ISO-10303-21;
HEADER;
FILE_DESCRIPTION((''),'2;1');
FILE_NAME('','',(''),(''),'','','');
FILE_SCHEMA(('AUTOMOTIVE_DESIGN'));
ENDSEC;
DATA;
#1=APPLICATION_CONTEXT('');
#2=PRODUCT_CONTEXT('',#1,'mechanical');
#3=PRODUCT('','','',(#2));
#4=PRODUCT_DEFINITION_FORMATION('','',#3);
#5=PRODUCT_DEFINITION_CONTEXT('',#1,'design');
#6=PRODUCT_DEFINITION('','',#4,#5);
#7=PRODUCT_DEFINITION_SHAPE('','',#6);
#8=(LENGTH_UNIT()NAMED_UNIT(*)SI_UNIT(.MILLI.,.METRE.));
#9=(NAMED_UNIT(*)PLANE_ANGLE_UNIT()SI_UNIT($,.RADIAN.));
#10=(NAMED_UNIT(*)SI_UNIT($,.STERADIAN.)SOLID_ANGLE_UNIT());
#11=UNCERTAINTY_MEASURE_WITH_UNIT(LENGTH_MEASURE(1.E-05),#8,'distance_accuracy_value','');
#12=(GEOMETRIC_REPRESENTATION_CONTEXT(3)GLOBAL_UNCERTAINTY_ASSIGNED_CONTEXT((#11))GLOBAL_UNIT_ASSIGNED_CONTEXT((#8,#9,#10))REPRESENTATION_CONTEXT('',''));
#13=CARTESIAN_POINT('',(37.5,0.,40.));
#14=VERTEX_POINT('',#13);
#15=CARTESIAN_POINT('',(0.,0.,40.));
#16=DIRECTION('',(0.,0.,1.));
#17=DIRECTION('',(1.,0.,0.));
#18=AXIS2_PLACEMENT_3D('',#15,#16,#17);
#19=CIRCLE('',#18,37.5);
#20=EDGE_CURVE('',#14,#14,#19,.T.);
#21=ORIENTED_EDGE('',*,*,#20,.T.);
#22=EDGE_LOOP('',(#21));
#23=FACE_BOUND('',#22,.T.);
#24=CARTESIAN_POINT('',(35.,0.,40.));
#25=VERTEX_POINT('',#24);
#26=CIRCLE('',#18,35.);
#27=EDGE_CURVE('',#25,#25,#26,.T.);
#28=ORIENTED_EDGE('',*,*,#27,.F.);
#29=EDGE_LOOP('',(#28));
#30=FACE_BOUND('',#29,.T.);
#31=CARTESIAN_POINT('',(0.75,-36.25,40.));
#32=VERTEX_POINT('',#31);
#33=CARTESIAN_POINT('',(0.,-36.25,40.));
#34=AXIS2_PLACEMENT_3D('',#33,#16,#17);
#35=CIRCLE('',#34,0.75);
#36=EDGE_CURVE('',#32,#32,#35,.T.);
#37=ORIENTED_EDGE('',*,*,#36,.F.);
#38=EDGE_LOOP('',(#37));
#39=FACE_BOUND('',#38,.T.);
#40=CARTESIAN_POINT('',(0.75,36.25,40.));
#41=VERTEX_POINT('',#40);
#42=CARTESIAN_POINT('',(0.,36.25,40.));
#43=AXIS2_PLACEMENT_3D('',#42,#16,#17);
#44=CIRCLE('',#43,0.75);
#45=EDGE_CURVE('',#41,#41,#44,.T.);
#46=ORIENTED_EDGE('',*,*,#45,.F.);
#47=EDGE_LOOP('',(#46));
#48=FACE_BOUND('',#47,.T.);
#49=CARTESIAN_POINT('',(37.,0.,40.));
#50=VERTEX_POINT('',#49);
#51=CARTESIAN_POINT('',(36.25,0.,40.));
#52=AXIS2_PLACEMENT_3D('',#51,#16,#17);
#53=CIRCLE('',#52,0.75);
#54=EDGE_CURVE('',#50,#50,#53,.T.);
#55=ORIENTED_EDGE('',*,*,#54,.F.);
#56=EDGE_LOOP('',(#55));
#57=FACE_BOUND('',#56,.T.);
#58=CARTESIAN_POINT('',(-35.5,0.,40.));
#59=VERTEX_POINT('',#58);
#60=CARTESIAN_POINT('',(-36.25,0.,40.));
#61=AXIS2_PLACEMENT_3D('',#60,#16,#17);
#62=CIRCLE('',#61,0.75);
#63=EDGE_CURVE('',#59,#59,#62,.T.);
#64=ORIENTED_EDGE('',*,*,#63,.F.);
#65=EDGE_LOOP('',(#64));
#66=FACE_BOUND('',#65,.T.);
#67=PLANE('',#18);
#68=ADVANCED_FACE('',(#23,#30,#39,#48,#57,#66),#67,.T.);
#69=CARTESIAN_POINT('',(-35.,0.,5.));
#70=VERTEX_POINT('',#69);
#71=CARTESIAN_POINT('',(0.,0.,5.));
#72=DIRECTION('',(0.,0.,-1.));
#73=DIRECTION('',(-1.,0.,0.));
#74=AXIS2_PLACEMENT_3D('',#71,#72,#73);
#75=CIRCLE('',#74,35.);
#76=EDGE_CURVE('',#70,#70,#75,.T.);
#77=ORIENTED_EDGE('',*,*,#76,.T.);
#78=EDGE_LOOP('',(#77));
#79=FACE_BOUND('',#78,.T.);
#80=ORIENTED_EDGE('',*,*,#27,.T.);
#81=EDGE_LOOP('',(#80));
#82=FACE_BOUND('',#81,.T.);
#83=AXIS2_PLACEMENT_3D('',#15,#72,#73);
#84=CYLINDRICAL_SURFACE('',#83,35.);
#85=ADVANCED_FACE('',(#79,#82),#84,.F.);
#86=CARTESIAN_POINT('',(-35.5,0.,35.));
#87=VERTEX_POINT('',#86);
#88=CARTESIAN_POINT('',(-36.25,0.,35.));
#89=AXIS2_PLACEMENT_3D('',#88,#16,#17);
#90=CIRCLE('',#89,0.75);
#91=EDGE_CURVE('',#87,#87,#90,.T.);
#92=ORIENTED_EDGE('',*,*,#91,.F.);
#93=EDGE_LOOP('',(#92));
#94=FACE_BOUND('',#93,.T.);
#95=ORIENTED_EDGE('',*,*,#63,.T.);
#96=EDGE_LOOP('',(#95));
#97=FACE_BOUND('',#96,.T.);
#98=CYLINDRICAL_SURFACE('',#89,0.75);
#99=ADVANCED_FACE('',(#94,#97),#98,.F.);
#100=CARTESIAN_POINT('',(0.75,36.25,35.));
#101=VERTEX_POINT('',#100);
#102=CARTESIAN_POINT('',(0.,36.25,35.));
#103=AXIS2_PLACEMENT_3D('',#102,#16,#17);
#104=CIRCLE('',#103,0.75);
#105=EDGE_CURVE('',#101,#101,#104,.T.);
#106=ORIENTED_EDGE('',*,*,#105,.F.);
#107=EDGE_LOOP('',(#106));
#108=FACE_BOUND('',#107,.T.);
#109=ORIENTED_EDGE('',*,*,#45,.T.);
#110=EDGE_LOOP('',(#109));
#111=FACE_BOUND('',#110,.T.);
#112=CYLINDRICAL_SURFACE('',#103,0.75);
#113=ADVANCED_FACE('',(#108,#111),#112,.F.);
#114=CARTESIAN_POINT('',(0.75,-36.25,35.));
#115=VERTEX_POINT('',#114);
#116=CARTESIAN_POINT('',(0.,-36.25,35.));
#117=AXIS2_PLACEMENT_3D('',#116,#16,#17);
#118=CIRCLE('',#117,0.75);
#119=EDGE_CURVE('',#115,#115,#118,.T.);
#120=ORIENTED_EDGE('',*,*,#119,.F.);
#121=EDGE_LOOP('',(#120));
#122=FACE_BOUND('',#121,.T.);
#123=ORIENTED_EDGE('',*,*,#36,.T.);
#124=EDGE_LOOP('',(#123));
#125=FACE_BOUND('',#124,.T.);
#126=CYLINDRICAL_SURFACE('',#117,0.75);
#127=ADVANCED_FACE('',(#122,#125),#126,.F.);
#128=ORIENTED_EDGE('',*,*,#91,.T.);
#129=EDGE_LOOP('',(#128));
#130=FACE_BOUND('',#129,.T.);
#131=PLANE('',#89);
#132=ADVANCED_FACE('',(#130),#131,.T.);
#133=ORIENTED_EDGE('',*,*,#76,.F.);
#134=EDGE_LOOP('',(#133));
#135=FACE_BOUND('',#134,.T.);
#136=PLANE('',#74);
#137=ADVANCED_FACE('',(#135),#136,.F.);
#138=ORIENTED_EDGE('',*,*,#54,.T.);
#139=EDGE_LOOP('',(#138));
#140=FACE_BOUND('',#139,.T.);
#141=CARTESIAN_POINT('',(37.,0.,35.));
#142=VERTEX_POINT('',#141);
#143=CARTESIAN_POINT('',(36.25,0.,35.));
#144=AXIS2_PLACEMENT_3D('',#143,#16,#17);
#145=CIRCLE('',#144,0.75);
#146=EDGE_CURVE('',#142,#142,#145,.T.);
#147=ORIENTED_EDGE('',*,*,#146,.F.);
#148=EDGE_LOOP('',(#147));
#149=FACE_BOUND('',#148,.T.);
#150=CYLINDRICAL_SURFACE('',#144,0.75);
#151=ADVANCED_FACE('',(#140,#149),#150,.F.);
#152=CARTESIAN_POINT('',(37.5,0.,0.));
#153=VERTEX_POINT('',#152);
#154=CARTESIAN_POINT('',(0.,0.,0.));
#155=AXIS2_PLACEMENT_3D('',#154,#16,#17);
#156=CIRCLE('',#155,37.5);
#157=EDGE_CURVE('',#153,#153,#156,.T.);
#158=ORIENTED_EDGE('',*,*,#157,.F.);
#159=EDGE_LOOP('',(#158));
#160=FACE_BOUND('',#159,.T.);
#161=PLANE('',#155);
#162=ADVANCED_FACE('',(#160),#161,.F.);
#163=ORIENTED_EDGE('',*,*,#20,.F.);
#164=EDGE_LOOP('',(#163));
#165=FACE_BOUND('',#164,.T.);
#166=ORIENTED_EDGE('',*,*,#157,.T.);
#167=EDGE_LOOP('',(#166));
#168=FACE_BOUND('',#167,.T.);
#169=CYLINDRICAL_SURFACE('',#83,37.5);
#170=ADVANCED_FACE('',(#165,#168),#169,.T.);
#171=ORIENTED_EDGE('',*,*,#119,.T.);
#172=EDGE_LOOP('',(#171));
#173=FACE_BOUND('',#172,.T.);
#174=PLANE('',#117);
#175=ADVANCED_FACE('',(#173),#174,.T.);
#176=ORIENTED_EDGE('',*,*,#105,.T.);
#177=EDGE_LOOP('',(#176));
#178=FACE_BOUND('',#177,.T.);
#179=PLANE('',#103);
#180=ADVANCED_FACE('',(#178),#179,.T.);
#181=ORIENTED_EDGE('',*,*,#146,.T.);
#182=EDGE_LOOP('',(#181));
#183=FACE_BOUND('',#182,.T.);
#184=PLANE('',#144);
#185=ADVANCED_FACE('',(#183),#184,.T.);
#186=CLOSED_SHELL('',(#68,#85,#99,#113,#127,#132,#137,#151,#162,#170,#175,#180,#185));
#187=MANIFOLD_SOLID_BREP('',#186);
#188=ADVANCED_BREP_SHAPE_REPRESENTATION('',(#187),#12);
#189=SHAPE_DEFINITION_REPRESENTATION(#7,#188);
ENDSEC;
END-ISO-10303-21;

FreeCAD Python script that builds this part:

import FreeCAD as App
import Part
import Sketcher

doc = App.newDocument("Part")
body = doc.addObject("PartDesign::Body", "Body")

sketch1 = doc.addObject("Sketcher::SketchObject", "Sketch")
body.addObject(sketch1)
sketch1.AttachmentSupport = (doc.XY_Plane, [""])
sketch1.MapMode = "FlatFace"
sketch1.addGeometry([
    Part.Circle(App.Vector(0, 0, 0), App.Vector(0, 0, 1), 37.5),
    Part.Circle(App.Vector(0, 0, 0), App.Vector(0, 0, 1), 35),
], False)
sketch1.addConstraint([
    Sketcher.Constraint("Coincident", 0, 3, -1, 1),
    Sketcher.Constraint("Coincident", 1, 3, -1, 1),
    Sketcher.Constraint("Diameter", 0, 75.0),
    Sketcher.Constraint("Diameter", 1, 70.0),
])
pad1 = doc.addObject("PartDesign::Pad", "Pad")
body.addObject(pad1)
pad1.Profile = sketch1
pad1.Length = 40

sketch2 = doc.addObject("Sketcher::SketchObject", "Sketch001")
body.addObject(sketch2)
sketch2.AttachmentSupport = (doc.XY_Plane, [""])
sketch2.MapMode = "FlatFace"
sketch2.addGeometry(Part.Circle(App.Vector(0, 0, 0), App.Vector(0, 0, 1), 35), False)
sketch2.addConstraint([
    Sketcher.Constraint("Coincident", 0, 3, -1, 1),
    Sketcher.Constraint("Diameter", 0, 70.0),
])
pad2 = doc.addObject("PartDesign::Pad", "Pad001")
body.addObject(pad2)
pad2.Profile = sketch2
pad2.Length = 5

sketch3 = doc.addObject("Sketcher::SketchObject", "Sketch002")
body.addObject(sketch3)
sketch3.AttachmentSupport = (doc.XY_Plane, [""])
sketch3.MapMode = "FlatFace"
sketch3.AttachmentOffset = App.Placement(App.Vector(0, 0, 40), App.Rotation())
sketch3.addGeometry([
    Part.Circle(App.Vector(0, 36.25, 0), App.Vector(0, 0, 1), 0.75),
    Part.Circle(App.Vector(36.25, 0, 0), App.Vector(0, 0, 1), 0.75),
    Part.Circle(App.Vector(0, -36.25, 0), App.Vector(0, 0, 1), 0.75),
    Part.Circle(App.Vector(-36.25, 0, 0), App.Vector(0, 0, 1), 0.75),
], False)
sketch3.addConstraint([
    Sketcher.Constraint("Equal", 0, 1),
    Sketcher.Constraint("Equal", 1, 2),
    Sketcher.Constraint("Equal", 2, 3),
    Sketcher.Constraint("Symmetric", 0, 3, 2, 3, -1, 1),
    Sketcher.Constraint("Symmetric", 1, 3, 3, 3, -1, 1),
    Sketcher.Constraint("PointOnObject", 0, 3, -2),
    Sketcher.Constraint("PointOnObject", 1, 3, -1),
    Sketcher.Constraint("Diameter", 0, 1.5),
    Sketcher.Constraint("DistanceY", 2, 3, 0, 3, 72.5),
    Sketcher.Constraint("DistanceX", 3, 3, 1, 3, 72.5),
])
pocket1 = doc.addObject("PartDesign::Pocket", "Pocket")
body.addObject(pocket1)
pocket1.Profile = sketch3
pocket1.Length = 5

doc.recompute()
